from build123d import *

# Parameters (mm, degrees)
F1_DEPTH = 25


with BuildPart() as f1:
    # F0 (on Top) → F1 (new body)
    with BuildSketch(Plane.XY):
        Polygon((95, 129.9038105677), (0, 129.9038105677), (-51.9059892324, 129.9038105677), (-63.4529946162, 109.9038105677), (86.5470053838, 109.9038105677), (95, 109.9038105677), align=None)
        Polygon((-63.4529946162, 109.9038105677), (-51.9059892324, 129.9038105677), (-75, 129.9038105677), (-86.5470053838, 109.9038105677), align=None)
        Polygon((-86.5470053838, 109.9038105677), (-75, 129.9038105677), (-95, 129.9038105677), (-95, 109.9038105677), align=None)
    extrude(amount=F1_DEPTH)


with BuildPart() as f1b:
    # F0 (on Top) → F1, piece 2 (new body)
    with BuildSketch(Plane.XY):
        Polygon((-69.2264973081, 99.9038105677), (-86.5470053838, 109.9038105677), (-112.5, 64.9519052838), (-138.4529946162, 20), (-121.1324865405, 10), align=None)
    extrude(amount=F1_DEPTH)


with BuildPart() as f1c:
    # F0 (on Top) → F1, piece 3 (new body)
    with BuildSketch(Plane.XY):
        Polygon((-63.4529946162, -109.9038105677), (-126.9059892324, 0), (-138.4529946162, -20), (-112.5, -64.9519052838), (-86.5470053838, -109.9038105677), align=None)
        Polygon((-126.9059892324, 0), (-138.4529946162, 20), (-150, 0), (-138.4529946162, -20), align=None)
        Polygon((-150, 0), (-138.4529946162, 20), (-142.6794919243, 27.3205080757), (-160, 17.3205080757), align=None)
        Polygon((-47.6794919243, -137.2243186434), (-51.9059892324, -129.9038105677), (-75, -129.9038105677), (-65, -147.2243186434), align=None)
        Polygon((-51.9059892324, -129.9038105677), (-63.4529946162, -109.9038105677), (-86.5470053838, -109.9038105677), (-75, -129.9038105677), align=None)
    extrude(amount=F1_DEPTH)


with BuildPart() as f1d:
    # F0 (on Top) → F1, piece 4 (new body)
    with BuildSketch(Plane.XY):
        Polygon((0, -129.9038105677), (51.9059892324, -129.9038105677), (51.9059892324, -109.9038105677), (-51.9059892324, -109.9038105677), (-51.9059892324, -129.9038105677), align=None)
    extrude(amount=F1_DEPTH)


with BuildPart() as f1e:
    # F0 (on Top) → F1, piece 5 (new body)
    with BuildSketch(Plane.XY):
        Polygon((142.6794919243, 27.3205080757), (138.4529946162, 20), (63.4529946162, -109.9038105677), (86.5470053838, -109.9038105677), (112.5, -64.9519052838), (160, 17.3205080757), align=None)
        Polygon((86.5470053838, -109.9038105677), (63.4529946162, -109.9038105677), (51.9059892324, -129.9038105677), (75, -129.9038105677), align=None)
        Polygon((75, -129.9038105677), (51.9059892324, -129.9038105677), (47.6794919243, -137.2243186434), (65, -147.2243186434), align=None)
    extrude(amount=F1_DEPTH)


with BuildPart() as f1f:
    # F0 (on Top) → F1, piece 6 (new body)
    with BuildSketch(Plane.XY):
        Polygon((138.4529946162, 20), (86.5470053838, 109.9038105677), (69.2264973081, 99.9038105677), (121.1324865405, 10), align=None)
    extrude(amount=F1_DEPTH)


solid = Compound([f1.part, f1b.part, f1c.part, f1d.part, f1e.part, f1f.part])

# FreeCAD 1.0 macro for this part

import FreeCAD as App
import Part
import Sketcher
Q = App.Units.Quantity

doc = App.newDocument("Part")
body = doc.addObject("PartDesign::Body", "Body")

# Sketch on XY plane
sketch1 = body.newObject("Sketcher::SketchObject", "Sketch")
sketch1.AttachmentSupport = (doc.getObject("XY_Plane"), [""])
sketch1.MapMode = "FlatFace"
sketch1.addGeometry([
    Part.LineSegment(App.Vector(95, 110, 0), App.Vector(95, 130, 0)),
    Part.LineSegment(App.Vector(95, 130, 0), App.Vector(-95, 130, 0)),
    Part.LineSegment(App.Vector(-95, 130, 0), App.Vector(-95, 110, 0)),
    Part.LineSegment(App.Vector(-95, 110, 0), App.Vector(95, 110, 0)),
], False)
sketch1.addConstraint([
    Sketcher.Constraint("Coincident", 0, 2, 1, 1),
    Sketcher.Constraint("Coincident", 1, 2, 2, 1),
    Sketcher.Constraint("Coincident", 2, 2, 3, 1),
    Sketcher.Constraint("Coincident", 3, 2, 0, 1),
    Sketcher.Constraint("Vertical", 0),
    Sketcher.Constraint("Horizontal", 1),
    Sketcher.Constraint("Vertical", 2),
    Sketcher.Constraint("Horizontal", 3),
    Sketcher.Constraint("DistanceX", 1, 2, 1, 1, Q("190 mm")),
    Sketcher.Constraint("DistanceY", 0, 1, 0, 2, Q("20 mm")),
    Sketcher.Constraint("DistanceX", -1, 1, 0, 2, Q("95 mm")),
    Sketcher.Constraint("DistanceY", -1, 1, 0, 2, Q("129.903811 mm")),
])
pad1 = body.newObject("PartDesign::Pad", "Pad")
pad1.Profile = sketch1
pad1.Length = 25
body2 = doc.addObject("PartDesign::Body", "Body001")

# Sketch on XY plane
sketch2 = body2.newObject("Sketcher::SketchObject", "Sketch001")
sketch2.AttachmentSupport = (doc.getObject("XY_Plane001"), [""])
sketch2.MapMode = "FlatFace"
sketch2.addGeometry([
    Part.LineSegment(App.Vector(-69, 100, 0), App.Vector(-87, 110, 0)),
    Part.LineSegment(App.Vector(-87, 110, 0), App.Vector(-138, 20, 0)),
    Part.LineSegment(App.Vector(-138, 20, 0), App.Vector(-121, 10, 0)),
    Part.LineSegment(App.Vector(-121, 10, 0), App.Vector(-69, 100, 0)),
], False)
sketch2.addConstraint([
    Sketcher.Constraint("Coincident", 0, 2, 1, 1),
    Sketcher.Constraint("Coincident", 1, 2, 2, 1),
    Sketcher.Constraint("Coincident", 2, 2, 3, 1),
    Sketcher.Constraint("Coincident", 3, 2, 0, 1),
    Sketcher.Constraint("Perpendicular", 0, 1),
    Sketcher.Constraint("Perpendicular", 1, 2),
    Sketcher.Constraint("Perpendicular", 2, 3),
    Sketcher.Constraint("Angle", 0, Q("150 deg")),
    Sketcher.Constraint("Distance", 0, Q("20 mm")),
    Sketcher.Constraint("DistanceY", -1, 1, 1, 2, Q("20 mm")),
    Sketcher.Constraint("Distance", 1, Q("103.811978 mm")),
    Sketcher.Constraint("DistanceX", 0, 2, -1, 1, Q("86.547005 mm")),
])
pad2 = body2.newObject("PartDesign::Pad", "Pad001")
pad2.Profile = sketch2
pad2.Length = 25
body3 = doc.addObject("PartDesign::Body", "Body002")

# Sketch on XY plane
sketch3 = body3.newObject("Sketcher::SketchObject", "Sketch002")
sketch3.AttachmentSupport = (doc.getObject("XY_Plane002"), [""])
sketch3.MapMode = "FlatFace"
sketch3.addGeometry([
    Part.LineSegment(App.Vector(-143, 27, 0), App.Vector(-160, 17, 0)),  # 0
    Part.LineSegment(App.Vector(-160, 17, 0), App.Vector(-65, -147, 0)),  # 1
    Part.LineSegment(App.Vector(-65, -147, 0), App.Vector(-48, -137, 0)),  # 2
    Part.LineSegment(App.Vector(-48, -137, 0), App.Vector(-52, -130, 0)),  # 3
    Part.LineSegment(App.Vector(-52, -130, 0), App.Vector(-143, 27, 0)),  # 4
], False)
sketch3.addConstraint([
    Sketcher.Constraint("Coincident", 0, 2, 1, 1),
    Sketcher.Constraint("Coincident", 1, 2, 2, 1),
    Sketcher.Constraint("Coincident", 2, 2, 3, 1),
    Sketcher.Constraint("Coincident", 3, 2, 4, 1),
    Sketcher.Constraint("Coincident", 4, 2, 0, 1),
    Sketcher.Constraint("Perpendicular", 0, 1),
    Sketcher.Constraint("Perpendicular", 1, 2),
    Sketcher.Constraint("Perpendicular", 2, 3),
    Sketcher.Constraint("Parallel", 3, 4),
    Sketcher.Constraint("Angle", 0, Q("-150 deg")),
    Sketcher.Constraint("Distance", 0, Q("20 mm")),
    Sketcher.Constraint("Distance", 1, Q("190 mm")),
    Sketcher.Constraint("DistanceX", 0, 2, -1, 1, Q("160 mm")),
    Sketcher.Constraint("DistanceY", -1, 1, 0, 2, Q("17.320508 mm")),
    Sketcher.Constraint("DistanceX", 3, 2, -1, 1, Q("51.905989 mm")),
])
pad3 = body3.newObject("PartDesign::Pad", "Pad002")
pad3.Profile = sketch3
pad3.Length = 25
body4 = doc.addObject("PartDesign::Body", "Body003")

# Sketch on XY plane
sketch4 = body4.newObject("Sketcher::SketchObject", "Sketch003")
sketch4.AttachmentSupport = (doc.getObject("XY_Plane003"), [""])
sketch4.MapMode = "FlatFace"
sketch4.addGeometry([
    Part.LineSegment(App.Vector(52, -130, 0), App.Vector(52, -110, 0)),
    Part.LineSegment(App.Vector(52, -110, 0), App.Vector(-52, -110, 0)),
    Part.LineSegment(App.Vector(-52, -110, 0), App.Vector(-52, -130, 0)),
    Part.LineSegment(App.Vector(-52, -130, 0), App.Vector(52, -130, 0)),
], False)
sketch4.addConstraint([
    Sketcher.Constraint("Coincident", 0, 2, 1, 1),
    Sketcher.Constraint("Coincident", 1, 2, 2, 1),
    Sketcher.Constraint("Coincident", 2, 2, 3, 1),
    Sketcher.Constraint("Coincident", 3, 2, 0, 1),
    Sketcher.Constraint("Vertical", 0),
    Sketcher.Constraint("Horizontal", 1),
    Sketcher.Constraint("Vertical", 2),
    Sketcher.Constraint("Horizontal", 3),
    Sketcher.Constraint("DistanceY", 0, 1, 0, 2, Q("20 mm")),
    Sketcher.Constraint("DistanceX", 1, 2, 1, 1, Q("103.811978 mm")),
    Sketcher.Constraint("DistanceX", -1, 1, 0, 2, Q("51.905989 mm")),
    Sketcher.Constraint("DistanceY", 0, 2, -1, 1, Q("109.903811 mm")),
])
pad4 = body4.newObject("PartDesign::Pad", "Pad003")
pad4.Profile = sketch4
pad4.Length = 25
body5 = doc.addObject("PartDesign::Body", "Body004")

# Sketch on XY plane
sketch5 = body5.newObject("Sketcher::SketchObject", "Sketch004")
sketch5.AttachmentSupport = (doc.getObject("XY_Plane004"), [""])
sketch5.MapMode = "FlatFace"
sketch5.addGeometry([
    Part.LineSegment(App.Vector(143, 27, 0), App.Vector(48, -137, 0)),
    Part.LineSegment(App.Vector(48, -137, 0), App.Vector(65, -147, 0)),
    Part.LineSegment(App.Vector(65, -147, 0), App.Vector(160, 17, 0)),
    Part.LineSegment(App.Vector(160, 17, 0), App.Vector(143, 27, 0)),
], False)
sketch5.addConstraint([
    Sketcher.Constraint("Coincident", 0, 2, 1, 1),
    Sketcher.Constraint("Coincident", 1, 2, 2, 1),
    Sketcher.Constraint("Coincident", 2, 2, 3, 1),
    Sketcher.Constraint("Coincident", 3, 2, 0, 1),
    Sketcher.Constraint("Perpendicular", 0, 1),
    Sketcher.Constraint("Perpendicular", 1, 2),
    Sketcher.Constraint("Perpendicular", 2, 3),
    Sketcher.Constraint("Angle", 0, Q("-120 deg")),
    Sketcher.Constraint("Distance", 0, Q("190 mm")),
    Sketcher.Constraint("Distance", 1, Q("20 mm")),
    Sketcher.Constraint("DistanceX", -1, 1, 1, 2, Q("65 mm")),
    Sketcher.Constraint("DistanceY", 0, 2, -1, 1, Q("137.224319 mm")),
])
pad5 = body5.newObject("PartDesign::Pad", "Pad004")
pad5.Profile = sketch5
pad5.Length = 25
body6 = doc.addObject("PartDesign::Body", "Body005")

# Sketch on XY plane
sketch6 = body6.newObject("Sketcher::SketchObject", "Sketch005")
sketch6.AttachmentSupport = (doc.getObject("XY_Plane005"), [""])
sketch6.MapMode = "FlatFace"
sketch6.addGeometry([
    Part.LineSegment(App.Vector(138, 20, 0), App.Vector(87, 110, 0)),
    Part.LineSegment(App.Vector(87, 110, 0), App.Vector(69, 100, 0)),
    Part.LineSegment(App.Vector(69, 100, 0), App.Vector(121, 10, 0)),
    Part.LineSegment(App.Vector(121, 10, 0), App.Vector(138, 20, 0)),
], False)
sketch6.addConstraint([
    Sketcher.Constraint("Coincident", 0, 2, 1, 1),
    Sketcher.Constraint("Coincident", 1, 2, 2, 1),
    Sketcher.Constraint("Coincident", 2, 2, 3, 1),
    Sketcher.Constraint("Coincident", 3, 2, 0, 1),
    Sketcher.Constraint("Perpendicular", 0, 1),
    Sketcher.Constraint("Perpendicular", 1, 2),
    Sketcher.Constraint("Perpendicular", 2, 3),
    Sketcher.Constraint("Angle", 0, Q("120 deg")),
    Sketcher.Constraint("Distance", 1, Q("20 mm")),
    Sketcher.Constraint("DistanceY", -1, 1, 2, 2, Q("10 mm")),
    Sketcher.Constraint("Distance", 0, Q("103.811978 mm")),
    Sketcher.Constraint("DistanceX", -1, 1, 0, 2, Q("86.547005 mm")),
])
pad6 = body6.newObject("PartDesign::Pad", "Pad005")
pad6.Profile = sketch6
pad6.Length = 25

doc.recompute()
